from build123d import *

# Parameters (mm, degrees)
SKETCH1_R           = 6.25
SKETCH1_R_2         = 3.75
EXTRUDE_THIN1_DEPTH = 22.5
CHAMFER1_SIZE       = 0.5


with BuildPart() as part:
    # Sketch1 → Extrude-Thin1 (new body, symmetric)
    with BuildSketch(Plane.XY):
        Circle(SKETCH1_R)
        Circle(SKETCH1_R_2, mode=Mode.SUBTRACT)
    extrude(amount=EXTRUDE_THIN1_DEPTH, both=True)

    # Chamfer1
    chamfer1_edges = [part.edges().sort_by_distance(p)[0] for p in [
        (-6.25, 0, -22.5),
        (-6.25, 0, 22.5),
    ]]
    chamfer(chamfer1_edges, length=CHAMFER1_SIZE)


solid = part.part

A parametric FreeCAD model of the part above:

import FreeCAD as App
import Part
import Sketcher

V = App.Vector


def edges_at(feature, points):
    """Names of the edges that pass closest to the given points."""
    edges = feature.Shape.Edges
    near = lambda p: min(range(len(edges)), key=lambda i: edges[i].distToShape(Part.Vertex(*p))[0])
    return sorted({f"Edge{near(p) + 1}" for p in points})

doc = App.newDocument("Part")
params = doc.addObject("Spreadsheet::Sheet", "Params")
for row, (alias, value) in enumerate([
    ("sketch1_diameter", "12.5 mm"),
    ("sketch1_diameter2", "7.5 mm"),
    ("pad1_length", "45 mm"),
    ("chamfer_size", "0.5 mm"),
], start=1):
    params.set(f"A{row}", alias)
    params.set(f"B{row}", "=" + value)
    params.setAlias(f"B{row}", alias)

body = doc.addObject("PartDesign::Body", "Body")

sketch1 = body.newObject("Sketcher::SketchObject", "Sketch")
sketch1.AttachmentSupport = (doc.getObject("XY_Plane"), [""])
sketch1.MapMode = "FlatFace"
sketch1.addGeometry([
    Part.Circle(V(0, 0, 0), V(0, 0, 1), 6.2),
    Part.Circle(V(0, 0, 0), V(0, 0, 1), 3.8),
], False)
sketch1.addConstraint([
    Sketcher.Constraint("Coincident", 0, 3, -1, 1),
    Sketcher.Constraint("Coincident", 1, 3, -1, 1),
    Sketcher.Constraint("Diameter", 0, 12.5),
    Sketcher.Constraint("Diameter", 1, 7.5),
])
sketch1.setExpression("Constraints[2]", "Params.sketch1_diameter")
sketch1.setExpression("Constraints[3]", "Params.sketch1_diameter2")
pad1 = body.newObject("PartDesign::Pad", "Pad")
pad1.Profile = sketch1
pad1.setExpression("Length", "Params.pad1_length")
pad1.Midplane = True
doc.recompute()

chamfer = body.newObject("PartDesign::Chamfer", "Chamfer")
chamfer.Base = (pad1, edges_at(pad1, [(-6.25, 0, -22.5), (-6.25, 0, 22.5)]))
chamfer.setExpression("Size", "Params.chamfer_size")

doc.recompute()
